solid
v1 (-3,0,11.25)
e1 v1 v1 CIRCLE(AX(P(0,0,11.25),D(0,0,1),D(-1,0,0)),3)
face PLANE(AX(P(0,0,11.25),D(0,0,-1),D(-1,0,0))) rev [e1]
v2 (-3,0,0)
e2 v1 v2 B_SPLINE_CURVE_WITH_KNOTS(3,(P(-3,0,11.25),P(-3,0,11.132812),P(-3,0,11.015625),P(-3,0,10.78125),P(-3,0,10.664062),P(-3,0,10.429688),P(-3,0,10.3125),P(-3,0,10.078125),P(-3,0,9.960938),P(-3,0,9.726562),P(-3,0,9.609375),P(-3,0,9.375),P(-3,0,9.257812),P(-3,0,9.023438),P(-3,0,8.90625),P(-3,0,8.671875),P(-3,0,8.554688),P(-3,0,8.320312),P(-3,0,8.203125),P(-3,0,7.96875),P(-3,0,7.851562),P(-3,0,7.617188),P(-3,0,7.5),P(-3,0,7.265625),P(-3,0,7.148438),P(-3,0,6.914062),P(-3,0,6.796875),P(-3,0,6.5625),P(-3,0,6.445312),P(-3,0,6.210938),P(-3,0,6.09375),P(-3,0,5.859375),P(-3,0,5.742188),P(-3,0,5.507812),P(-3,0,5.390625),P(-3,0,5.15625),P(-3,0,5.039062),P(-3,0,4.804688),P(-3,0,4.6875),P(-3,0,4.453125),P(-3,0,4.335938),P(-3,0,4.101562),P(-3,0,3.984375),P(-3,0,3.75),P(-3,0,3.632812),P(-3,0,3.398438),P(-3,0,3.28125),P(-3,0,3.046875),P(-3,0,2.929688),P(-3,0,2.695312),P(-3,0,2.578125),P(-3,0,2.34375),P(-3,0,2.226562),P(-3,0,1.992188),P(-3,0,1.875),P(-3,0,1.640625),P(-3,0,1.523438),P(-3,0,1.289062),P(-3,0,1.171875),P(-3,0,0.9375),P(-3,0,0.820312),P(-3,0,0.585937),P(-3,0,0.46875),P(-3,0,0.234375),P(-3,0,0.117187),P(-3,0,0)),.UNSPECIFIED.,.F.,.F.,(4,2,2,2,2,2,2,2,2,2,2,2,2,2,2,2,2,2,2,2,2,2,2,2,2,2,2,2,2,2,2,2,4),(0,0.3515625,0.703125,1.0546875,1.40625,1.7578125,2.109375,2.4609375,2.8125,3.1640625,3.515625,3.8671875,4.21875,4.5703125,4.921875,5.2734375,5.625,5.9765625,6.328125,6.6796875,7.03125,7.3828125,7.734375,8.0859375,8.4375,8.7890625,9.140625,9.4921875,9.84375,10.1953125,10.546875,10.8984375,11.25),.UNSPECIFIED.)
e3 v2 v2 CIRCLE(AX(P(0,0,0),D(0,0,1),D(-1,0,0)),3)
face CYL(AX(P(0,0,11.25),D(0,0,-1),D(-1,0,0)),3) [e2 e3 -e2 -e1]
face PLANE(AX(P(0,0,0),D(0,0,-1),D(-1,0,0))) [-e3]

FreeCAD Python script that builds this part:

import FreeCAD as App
import Part
import Sketcher
Q = App.Units.Quantity

doc = App.newDocument("Part")
body = doc.addObject("PartDesign::Body", "Body")

sketch1 = body.newObject("Sketcher::SketchObject", "Sketch")
sketch1.AttachmentSupport = (doc.getObject("XY_Plane"), [""])
sketch1.MapMode = "FlatFace"
sketch1.addGeometry(Part.Circle(App.Vector(0, 0, 0), App.Vector(0, 0, 1), 3), False)
sketch1.addConstraint(Sketcher.Constraint("Coincident", 0, 3, -1, 1))
sketch1.addConstraint(Sketcher.Constraint("Diameter", 0, Q("6 mm")))
pad1 = body.newObject("PartDesign::Pad", "Pad")
pad1.Profile = sketch1
pad1.Length = 11.25

doc.recompute()
